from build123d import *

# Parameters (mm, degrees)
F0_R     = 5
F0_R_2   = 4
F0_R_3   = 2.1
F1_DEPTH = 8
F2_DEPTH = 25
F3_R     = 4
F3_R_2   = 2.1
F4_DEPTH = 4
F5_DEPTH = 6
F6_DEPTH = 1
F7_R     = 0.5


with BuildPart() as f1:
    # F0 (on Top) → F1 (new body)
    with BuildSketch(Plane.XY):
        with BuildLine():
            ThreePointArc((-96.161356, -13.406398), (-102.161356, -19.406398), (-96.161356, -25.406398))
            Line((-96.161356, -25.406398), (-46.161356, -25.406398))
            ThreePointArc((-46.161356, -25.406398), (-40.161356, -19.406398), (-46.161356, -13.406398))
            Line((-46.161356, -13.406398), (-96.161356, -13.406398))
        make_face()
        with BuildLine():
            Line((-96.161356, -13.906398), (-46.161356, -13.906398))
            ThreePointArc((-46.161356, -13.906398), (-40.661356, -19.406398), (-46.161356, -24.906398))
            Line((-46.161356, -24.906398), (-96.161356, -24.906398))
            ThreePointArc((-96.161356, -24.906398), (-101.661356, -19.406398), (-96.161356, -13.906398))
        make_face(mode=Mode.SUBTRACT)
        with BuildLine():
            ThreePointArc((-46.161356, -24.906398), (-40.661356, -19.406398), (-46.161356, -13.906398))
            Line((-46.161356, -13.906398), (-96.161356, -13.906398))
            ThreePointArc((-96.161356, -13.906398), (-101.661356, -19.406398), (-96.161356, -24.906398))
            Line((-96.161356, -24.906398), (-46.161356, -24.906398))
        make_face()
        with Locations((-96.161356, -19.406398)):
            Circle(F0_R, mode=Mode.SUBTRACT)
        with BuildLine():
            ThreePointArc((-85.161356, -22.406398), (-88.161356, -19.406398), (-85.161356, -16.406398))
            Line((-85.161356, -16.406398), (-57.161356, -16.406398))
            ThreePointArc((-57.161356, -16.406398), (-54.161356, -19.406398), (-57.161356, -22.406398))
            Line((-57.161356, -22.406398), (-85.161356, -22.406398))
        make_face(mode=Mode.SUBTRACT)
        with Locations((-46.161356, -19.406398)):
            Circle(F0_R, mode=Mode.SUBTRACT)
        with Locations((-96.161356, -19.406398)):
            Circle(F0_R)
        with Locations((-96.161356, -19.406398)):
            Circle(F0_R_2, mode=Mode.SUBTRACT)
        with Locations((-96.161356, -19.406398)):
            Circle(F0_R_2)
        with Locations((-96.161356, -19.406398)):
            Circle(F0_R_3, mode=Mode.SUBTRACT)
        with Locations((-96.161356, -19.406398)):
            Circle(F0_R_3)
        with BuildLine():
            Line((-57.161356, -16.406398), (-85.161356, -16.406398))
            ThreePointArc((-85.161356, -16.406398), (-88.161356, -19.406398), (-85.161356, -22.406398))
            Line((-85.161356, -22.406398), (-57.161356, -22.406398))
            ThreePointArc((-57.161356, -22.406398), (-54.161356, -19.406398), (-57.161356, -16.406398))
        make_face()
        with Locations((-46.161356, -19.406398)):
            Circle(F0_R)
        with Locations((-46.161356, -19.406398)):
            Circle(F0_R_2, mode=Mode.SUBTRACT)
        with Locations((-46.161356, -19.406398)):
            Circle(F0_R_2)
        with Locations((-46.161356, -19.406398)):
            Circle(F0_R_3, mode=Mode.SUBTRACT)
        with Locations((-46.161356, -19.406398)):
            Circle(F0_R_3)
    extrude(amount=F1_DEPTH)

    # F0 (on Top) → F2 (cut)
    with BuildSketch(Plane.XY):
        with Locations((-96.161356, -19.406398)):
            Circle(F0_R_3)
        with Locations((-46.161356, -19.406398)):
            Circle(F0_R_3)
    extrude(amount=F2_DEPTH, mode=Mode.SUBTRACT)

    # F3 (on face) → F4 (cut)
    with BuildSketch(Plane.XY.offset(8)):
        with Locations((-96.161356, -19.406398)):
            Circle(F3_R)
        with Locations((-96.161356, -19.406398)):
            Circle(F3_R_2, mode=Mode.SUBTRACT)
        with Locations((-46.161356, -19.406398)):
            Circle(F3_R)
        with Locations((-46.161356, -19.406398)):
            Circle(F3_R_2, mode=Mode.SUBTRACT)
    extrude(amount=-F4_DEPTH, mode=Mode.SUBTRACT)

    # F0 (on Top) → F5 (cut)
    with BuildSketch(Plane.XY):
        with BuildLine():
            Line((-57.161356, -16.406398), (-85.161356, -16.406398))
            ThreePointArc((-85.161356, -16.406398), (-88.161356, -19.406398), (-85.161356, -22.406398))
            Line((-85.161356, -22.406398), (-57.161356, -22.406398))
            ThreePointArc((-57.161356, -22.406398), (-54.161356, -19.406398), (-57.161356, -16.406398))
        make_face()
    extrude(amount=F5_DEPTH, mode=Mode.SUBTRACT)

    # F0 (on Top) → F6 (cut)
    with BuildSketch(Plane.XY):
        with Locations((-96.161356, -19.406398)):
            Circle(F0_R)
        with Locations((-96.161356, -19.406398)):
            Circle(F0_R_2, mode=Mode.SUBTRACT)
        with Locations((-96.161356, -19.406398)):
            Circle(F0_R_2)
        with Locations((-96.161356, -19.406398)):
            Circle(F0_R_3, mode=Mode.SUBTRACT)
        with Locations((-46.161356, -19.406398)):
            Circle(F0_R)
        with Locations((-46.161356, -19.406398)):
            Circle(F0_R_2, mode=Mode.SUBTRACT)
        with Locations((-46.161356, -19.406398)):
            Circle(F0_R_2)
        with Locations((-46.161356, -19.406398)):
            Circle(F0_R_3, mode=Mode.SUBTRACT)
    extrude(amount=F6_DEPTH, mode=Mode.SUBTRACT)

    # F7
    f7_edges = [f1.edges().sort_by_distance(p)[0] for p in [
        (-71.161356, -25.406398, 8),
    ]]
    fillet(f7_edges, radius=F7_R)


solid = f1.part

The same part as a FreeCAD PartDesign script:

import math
import FreeCAD as App
import Part
import Sketcher


def edges_at(feature, points):
    """Names of the edges that pass closest to the given points."""
    edges = feature.Shape.Edges
    near = lambda p: min(range(len(edges)), key=lambda i: edges[i].distToShape(Part.Vertex(*p))[0])
    return sorted({f"Edge{near(p) + 1}" for p in points})

doc = App.newDocument("Part")
body = doc.addObject("PartDesign::Body", "Body")

# Sketch on XY plane
sketch1 = body.newObject("Sketcher::SketchObject", "Sketch")
sketch1.AttachmentSupport = (doc.getObject("XY_Plane"), [""])
sketch1.MapMode = "FlatFace"
sketch1.addGeometry(Part.ArcOfCircle(Part.Circle(App.Vector(-96, -19, 0), App.Vector(0, 0, 1), 6), math.radians(90), math.radians(270)), False)
sketch1.addGeometry(Part.LineSegment(App.Vector(-96, -25, 0), App.Vector(-46, -25, 0)), False)
sketch1.addGeometry(Part.ArcOfCircle(Part.Circle(App.Vector(-46, -19, 0), App.Vector(0, 0, 1), 6), math.radians(-90), math.radians(90)), False)
sketch1.addGeometry(Part.LineSegment(App.Vector(-46, -13, 0), App.Vector(-96, -13, 0)), False)
sketch1.addConstraint(Sketcher.Constraint("Tangent", 0, 2, 1, 1))
sketch1.addConstraint(Sketcher.Constraint("Tangent", 1, 2, 2, 1))
sketch1.addConstraint(Sketcher.Constraint("Tangent", 2, 2, 3, 1))
sketch1.addConstraint(Sketcher.Constraint("Tangent", 3, 2, 0, 1))
sketch1.addConstraint(Sketcher.Constraint("Horizontal", 1))
sketch1.addConstraint(Sketcher.Constraint("Horizontal", 3))
sketch1.addConstraint(Sketcher.Constraint("Radius", 0, 6.0))
sketch1.addConstraint(Sketcher.Constraint("DistanceX", 1, 1, 1, 2, 50.0))
sketch1.addConstraint(Sketcher.Constraint("DistanceX", 0, 3, -1, 1, 96.161356))
sketch1.addConstraint(Sketcher.Constraint("DistanceY", 0, 3, -1, 1, 19.406398))
pad1 = body.newObject("PartDesign::Pad", "Pad")
pad1.Profile = sketch1
pad1.Length = 8

# Sketch on XY plane
sketch2 = body.newObject("Sketcher::SketchObject", "Sketch001")
sketch2.AttachmentSupport = (doc.getObject("XY_Plane"), [""])
sketch2.MapMode = "FlatFace"
sketch2.addGeometry(Part.Circle(App.Vector(-96.2, -19.4, 0), App.Vector(0, 0, 1), 2.1), False)
sketch2.addGeometry(Part.Circle(App.Vector(-46.2, -19.4, 0), App.Vector(0, 0, 1), 2.1), False)
sketch2.addConstraint(Sketcher.Constraint("Equal", 0, 1))
sketch2.addConstraint(Sketcher.Constraint("Horizontal", 0, 3, 1, 3))
sketch2.addConstraint(Sketcher.Constraint("Diameter", 0, 4.2))
sketch2.addConstraint(Sketcher.Constraint("DistanceX", 0, 3, 1, 3, 50.0))
sketch2.addConstraint(Sketcher.Constraint("DistanceX", 0, 3, -1, 1, 96.161356))
sketch2.addConstraint(Sketcher.Constraint("DistanceY", 0, 3, -1, 1, 19.406398))
pocket1 = body.newObject("PartDesign::Pocket", "Pocket")
pocket1.Profile = sketch2
pocket1.Length = 25
pocket1.Reversed = True

# Sketch on XY plane
sketch3 = body.newObject("Sketcher::SketchObject", "Sketch002")
sketch3.AttachmentSupport = (doc.getObject("XY_Plane"), [""])
sketch3.MapMode = "FlatFace"
sketch3.AttachmentOffset = App.Placement(App.Vector(0, 0, 8), App.Rotation())
sketch3.addGeometry(Part.Circle(App.Vector(-96.2, -19.4, 0), App.Vector(0, 0, 1), 4), False)
sketch3.addGeometry(Part.Circle(App.Vector(-96.2, -19.4, 0), App.Vector(0, 0, 1), 2.1), False)
sketch3.addGeometry(Part.Circle(App.Vector(-46.2, -19.4, 0), App.Vector(0, 0, 1), 4), False)
sketch3.addGeometry(Part.Circle(App.Vector(-46.2, -19.4, 0), App.Vector(0, 0, 1), 2.1), False)
sketch3.addConstraint(Sketcher.Constraint("Coincident", 1, 3, 0, 3))
sketch3.addConstraint(Sketcher.Constraint("Coincident", 3, 3, 2, 3))
sketch3.addConstraint(Sketcher.Constraint("Equal", 0, 2))
sketch3.addConstraint(Sketcher.Constraint("Equal", 1, 3))
sketch3.addConstraint(Sketcher.Constraint("Horizontal", 1, 3, 2, 3))
sketch3.addConstraint(Sketcher.Constraint("Diameter", 0, 8.0))
sketch3.addConstraint(Sketcher.Constraint("Diameter", 1, 4.2))
sketch3.addConstraint(Sketcher.Constraint("DistanceX", 0, 3, 2, 3, 50.0))
sketch3.addConstraint(Sketcher.Constraint("DistanceX", 0, 3, -1, 1, 96.161356))
sketch3.addConstraint(Sketcher.Constraint("DistanceY", 0, 3, -1, 1, 19.406398))
pocket2 = body.newObject("PartDesign::Pocket", "Pocket001")
pocket2.Profile = sketch3
pocket2.Length = 4

# Sketch on XY plane
sketch4 = body.newObject("Sketcher::SketchObject", "Sketch003")
sketch4.AttachmentSupport = (doc.getObject("XY_Plane"), [""])
sketch4.MapMode = "FlatFace"
sketch4.addGeometry(Part.LineSegment(App.Vector(-57.2, -16.4, 0), App.Vector(-85.2, -16.4, 0)), False)
sketch4.addGeometry(Part.ArcOfCircle(Part.Circle(App.Vector(-85.2, -19.4, 0), App.Vector(0, 0, 1), 3), math.radians(90), math.radians(270)), False)
sketch4.addGeometry(Part.LineSegment(App.Vector(-85.2, -22.4, 0), App.Vector(-57.2, -22.4, 0)), False)
sketch4.addGeometry(Part.ArcOfCircle(Part.Circle(App.Vector(-57.2, -19.4, 0), App.Vector(0, 0, 1), 3), math.radians(-90), math.radians(90)), False)
sketch4.addConstraint(Sketcher.Constraint("Tangent", 0, 2, 1, 1))
sketch4.addConstraint(Sketcher.Constraint("Tangent", 1, 2, 2, 1))
sketch4.addConstraint(Sketcher.Constraint("Tangent", 2, 2, 3, 1))
sketch4.addConstraint(Sketcher.Constraint("Tangent", 3, 2, 0, 1))
sketch4.addConstraint(Sketcher.Constraint("Horizontal", 0))
sketch4.addConstraint(Sketcher.Constraint("Horizontal", 2))
sketch4.addConstraint(Sketcher.Constraint("Radius", 1, 3.0))
sketch4.addConstraint(Sketcher.Constraint("DistanceX", 0, 2, 0, 1, 28.0))
sketch4.addConstraint(Sketcher.Constraint("DistanceX", 1, 3, -1, 1, 85.161356))
sketch4.addConstraint(Sketcher.Constraint("DistanceY", 1, 3, -1, 1, 19.406398))
pocket3 = body.newObject("PartDesign::Pocket", "Pocket002")
pocket3.Profile = sketch4
pocket3.Length = 6
pocket3.Reversed = True

# Sketch on XY plane
sketch5 = body.newObject("Sketcher::SketchObject", "Sketch004")
sketch5.AttachmentSupport = (doc.getObject("XY_Plane"), [""])
sketch5.MapMode = "FlatFace"
sketch5.addGeometry(Part.Circle(App.Vector(-96.2, -19.4, 0), App.Vector(0, 0, 1), 5), False)
sketch5.addGeometry(Part.Circle(App.Vector(-96.2, -19.4, 0), App.Vector(0, 0, 1), 2.1), False)
sketch5.addGeometry(Part.Circle(App.Vector(-46.2, -19.4, 0), App.Vector(0, 0, 1), 5), False)
sketch5.addGeometry(Part.Circle(App.Vector(-46.2, -19.4, 0), App.Vector(0, 0, 1), 2.1), False)
sketch5.addConstraint(Sketcher.Constraint("Coincident", 1, 3, 0, 3))
sketch5.addConstraint(Sketcher.Constraint("Coincident", 3, 3, 2, 3))
sketch5.addConstraint(Sketcher.Constraint("Equal", 0, 2))
sketch5.addConstraint(Sketcher.Constraint("Equal", 1, 3))
sketch5.addConstraint(Sketcher.Constraint("Horizontal", 1, 3, 2, 3))
sketch5.addConstraint(Sketcher.Constraint("Diameter", 0, 10.0))
sketch5.addConstraint(Sketcher.Constraint("Diameter", 1, 4.2))
sketch5.addConstraint(Sketcher.Constraint("DistanceX", 0, 3, 2, 3, 50.0))
sketch5.addConstraint(Sketcher.Constraint("DistanceX", 0, 3, -1, 1, 96.161356))
sketch5.addConstraint(Sketcher.Constraint("DistanceY", 0, 3, -1, 1, 19.406398))
pocket4 = body.newObject("PartDesign::Pocket", "Pocket003")
pocket4.Profile = sketch5
pocket4.Length = 1
pocket4.Reversed = True
doc.recompute()

fillet = body.newObject("PartDesign::Fillet", "Fillet")
fillet.Base = (pocket4, edges_at(pocket4, [(-71.161, -25.406, 8)]))
fillet.Radius = 0.5

doc.recompute()
